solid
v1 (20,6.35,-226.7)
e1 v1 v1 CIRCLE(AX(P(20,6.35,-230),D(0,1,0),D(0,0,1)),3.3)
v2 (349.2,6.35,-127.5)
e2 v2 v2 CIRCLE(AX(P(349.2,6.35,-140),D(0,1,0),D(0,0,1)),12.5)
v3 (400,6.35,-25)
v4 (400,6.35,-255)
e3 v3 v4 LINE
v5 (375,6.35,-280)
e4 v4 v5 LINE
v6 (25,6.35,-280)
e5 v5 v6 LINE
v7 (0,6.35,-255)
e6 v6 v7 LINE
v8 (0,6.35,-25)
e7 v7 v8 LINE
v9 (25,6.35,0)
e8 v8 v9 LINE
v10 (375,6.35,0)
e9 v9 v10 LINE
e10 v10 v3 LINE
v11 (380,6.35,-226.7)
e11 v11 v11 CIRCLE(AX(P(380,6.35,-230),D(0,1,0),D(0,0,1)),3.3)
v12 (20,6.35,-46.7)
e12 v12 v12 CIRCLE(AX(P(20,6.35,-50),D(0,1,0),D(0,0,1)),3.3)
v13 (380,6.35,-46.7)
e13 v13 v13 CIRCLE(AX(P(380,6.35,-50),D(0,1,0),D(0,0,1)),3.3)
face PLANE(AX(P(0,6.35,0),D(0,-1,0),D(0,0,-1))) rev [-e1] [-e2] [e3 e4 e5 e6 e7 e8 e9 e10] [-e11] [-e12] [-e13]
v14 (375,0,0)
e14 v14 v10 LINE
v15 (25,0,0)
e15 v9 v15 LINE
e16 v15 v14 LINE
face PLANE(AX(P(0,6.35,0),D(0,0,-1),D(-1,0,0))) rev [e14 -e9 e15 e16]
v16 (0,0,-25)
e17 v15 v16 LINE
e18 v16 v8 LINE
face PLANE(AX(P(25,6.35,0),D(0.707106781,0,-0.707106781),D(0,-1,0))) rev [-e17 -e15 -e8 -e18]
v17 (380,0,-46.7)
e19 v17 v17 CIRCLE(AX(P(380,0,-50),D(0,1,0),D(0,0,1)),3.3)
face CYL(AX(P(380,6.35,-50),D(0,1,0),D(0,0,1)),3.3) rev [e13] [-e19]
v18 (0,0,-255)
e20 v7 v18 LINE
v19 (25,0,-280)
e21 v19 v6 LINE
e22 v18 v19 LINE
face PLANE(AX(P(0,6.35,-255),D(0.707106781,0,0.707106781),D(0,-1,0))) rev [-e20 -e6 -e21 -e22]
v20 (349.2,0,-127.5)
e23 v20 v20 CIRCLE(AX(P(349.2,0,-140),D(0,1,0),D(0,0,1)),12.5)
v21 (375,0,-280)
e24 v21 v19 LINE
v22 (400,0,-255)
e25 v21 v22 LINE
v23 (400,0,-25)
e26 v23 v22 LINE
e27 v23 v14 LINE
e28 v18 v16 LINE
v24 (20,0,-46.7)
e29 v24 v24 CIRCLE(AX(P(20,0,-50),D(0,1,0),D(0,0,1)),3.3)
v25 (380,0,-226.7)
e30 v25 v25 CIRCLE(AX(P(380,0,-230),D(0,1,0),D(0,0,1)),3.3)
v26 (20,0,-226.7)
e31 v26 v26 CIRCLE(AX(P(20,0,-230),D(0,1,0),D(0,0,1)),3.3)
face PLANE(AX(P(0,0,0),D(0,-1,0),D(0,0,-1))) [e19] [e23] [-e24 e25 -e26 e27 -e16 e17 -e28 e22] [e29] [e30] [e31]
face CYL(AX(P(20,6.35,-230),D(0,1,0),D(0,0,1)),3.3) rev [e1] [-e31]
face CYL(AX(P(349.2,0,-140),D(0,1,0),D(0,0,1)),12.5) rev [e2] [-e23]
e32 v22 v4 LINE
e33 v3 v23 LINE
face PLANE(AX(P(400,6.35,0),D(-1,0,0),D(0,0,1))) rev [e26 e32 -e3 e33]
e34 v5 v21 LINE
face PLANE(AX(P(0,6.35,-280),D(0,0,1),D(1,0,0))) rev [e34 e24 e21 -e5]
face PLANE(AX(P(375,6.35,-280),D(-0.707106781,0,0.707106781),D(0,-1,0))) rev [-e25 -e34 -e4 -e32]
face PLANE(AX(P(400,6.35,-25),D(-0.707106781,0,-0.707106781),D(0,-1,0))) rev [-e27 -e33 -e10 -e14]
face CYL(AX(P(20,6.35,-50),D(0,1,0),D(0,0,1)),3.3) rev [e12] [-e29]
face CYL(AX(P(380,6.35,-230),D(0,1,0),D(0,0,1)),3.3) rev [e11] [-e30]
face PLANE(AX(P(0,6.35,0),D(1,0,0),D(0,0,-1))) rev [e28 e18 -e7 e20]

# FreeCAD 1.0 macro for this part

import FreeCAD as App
import Part
import Sketcher


def edges_at(feature, points):
    """Names of the edges that pass closest to the given points."""
    edges = feature.Shape.Edges
    near = lambda p: min(range(len(edges)), key=lambda i: edges[i].distToShape(Part.Vertex(*p))[0])
    return sorted({f"Edge{near(p) + 1}" for p in points})


def add_polygon(sketch, points):
    """Adds a closed chain of lines whose ends are joined by coincident constraints."""
    first, n = sketch.GeometryCount, len(points)
    for a, b in zip(points, points[1:] + points[:1]):
        sketch.addGeometry(Part.LineSegment(App.Vector(*a, 0), App.Vector(*b, 0)), False)
    for i in range(n):
        sketch.addConstraint(Sketcher.Constraint("Coincident", first + i, 2, first + (i + 1) % n, 1))

doc = App.newDocument("Part")
params = doc.addObject("Spreadsheet::Sheet", "Params")
for row, (alias, value) in enumerate([
    ("sketch1_width", "400 mm"),
    ("sketch1_height", "280 mm"),
    ("pad1_length", "6.35 mm"),
    ("chamfer_size", "25 mm"),
    ("sketch2_diameter", "25 mm"),
    ("sketch3_diameter", "6.6 mm"),
    ("hole_diameter", "6.6 mm"),
], start=1):
    params.set(f"A{row}", alias)
    params.set(f"B{row}", "=" + value)
    params.setAlias(f"B{row}", alias)

body = doc.addObject("PartDesign::Body", "Body")

# Sketch on XZ plane
sketch1 = body.newObject("Sketcher::SketchObject", "Sketch")
sketch1.AttachmentSupport = (doc.getObject("XZ_Plane"), [""])
sketch1.MapMode = "FlatFace"
add_polygon(sketch1, [(0, -280), (0, 0), (400, 0), (400, -280)])  # lines 0-3
sketch1.addConstraint([
    Sketcher.Constraint("Vertical", 0),
    Sketcher.Constraint("Horizontal", 1),
    Sketcher.Constraint("Vertical", 2),
    Sketcher.Constraint("Horizontal", 3),
    Sketcher.Constraint("Coincident", 0, 2, -1, 1),
    Sketcher.Constraint("DistanceX", 1, 1, 1, 2, 400.0),
    Sketcher.Constraint("DistanceY", 0, 1, 0, 2, 280.0),
])
sketch1.setExpression("Constraints[9]", "Params.sketch1_width")
sketch1.setExpression("Constraints[10]", "Params.sketch1_height")
pad1 = body.newObject("PartDesign::Pad", "Pad")
pad1.Profile = sketch1
pad1.setExpression("Length", "Params.pad1_length")
pad1.Reversed = True
doc.recompute()

chamfer = body.newObject("PartDesign::Chamfer", "Chamfer")
chamfer.Base = (pad1, edges_at(pad1, [
    (0, 3.175, -280),
    (400, 3.175, -280),
    (400, 3.175, 0),
    (0, 3.175, 0),
]))
chamfer.setExpression("Size", "Params.chamfer_size")

# Sketch on XZ plane
sketch2 = body.newObject("Sketcher::SketchObject", "Sketch001")
sketch2.AttachmentSupport = (doc.getObject("XZ_Plane"), [""])
sketch2.MapMode = "FlatFace"
sketch2.AttachmentOffset = App.Placement(App.Vector(0, 0, -6.35), App.Rotation())
sketch2.addGeometry(Part.Circle(App.Vector(349, -140, 0), App.Vector(0, 0, 1), 12), False)
sketch2.addConstraint([
    Sketcher.Constraint("Diameter", 0, 25.0),
    Sketcher.Constraint("DistanceY", 0, 3, -1, 1, 140.0),
    Sketcher.Constraint("DistanceX", -1, 1, 0, 3, 349.2),
])
sketch2.setExpression("Constraints[0]", "Params.sketch2_diameter")
pocket1 = body.newObject("PartDesign::Pocket", "Pocket")
pocket1.Profile = sketch2
pocket1.Type = "ThroughAll"
pocket1.Reversed = True

# Sketch on XZ plane
sketch3 = body.newObject("Sketcher::SketchObject", "Sketch002")
sketch3.AttachmentSupport = (doc.getObject("XZ_Plane"), [""])
sketch3.MapMode = "FlatFace"
sketch3.AttachmentOffset = App.Placement(App.Vector(0, 0, -6.35), App.Rotation())
sketch3.addGeometry([
    Part.Circle(App.Vector(380, -230, 0), App.Vector(0, 0, 1), 3.3),
    Part.Circle(App.Vector(380, -50, 0), App.Vector(0, 0, 1), 3.3),
    Part.Circle(App.Vector(20, -50, 0), App.Vector(0, 0, 1), 3.3),
    Part.Circle(App.Vector(20, -230, 0), App.Vector(0, 0, 1), 3.3),
], False)
sketch3.addConstraint([
    Sketcher.Constraint("Equal", 0, 1),
    Sketcher.Constraint("Equal", 1, 2),
    Sketcher.Constraint("Equal", 2, 3),
    Sketcher.Constraint("Horizontal", 1, 3, 2, 3),
    Sketcher.Constraint("Horizontal", 0, 3, 3, 3),
    Sketcher.Constraint("Vertical", 0, 3, 1, 3),
    Sketcher.Constraint("Vertical", 2, 3, 3, 3),
    Sketcher.Constraint("Diameter", 0, 6.6),
    Sketcher.Constraint("DistanceX", -1, 1, 0, 3, 380.0),
    Sketcher.Constraint("DistanceY", 0, 3, -1, 1, 230.0),
    Sketcher.Constraint("DistanceY", 1, 3, -1, 1, 50.0),
    Sketcher.Constraint("DistanceX", -1, 1, 2, 3, 20.0),
])
sketch3.setExpression("Constraints[7]", "Params.sketch3_diameter")
doc.recompute()
hole = body.newObject("PartDesign::Hole", "Hole")
hole.Profile = sketch3
hole.ThreadType = "None"
hole.setExpression("Diameter", "Params.hole_diameter")
hole.DepthType = "ThroughAll"
hole.Reversed = True

doc.recompute()
